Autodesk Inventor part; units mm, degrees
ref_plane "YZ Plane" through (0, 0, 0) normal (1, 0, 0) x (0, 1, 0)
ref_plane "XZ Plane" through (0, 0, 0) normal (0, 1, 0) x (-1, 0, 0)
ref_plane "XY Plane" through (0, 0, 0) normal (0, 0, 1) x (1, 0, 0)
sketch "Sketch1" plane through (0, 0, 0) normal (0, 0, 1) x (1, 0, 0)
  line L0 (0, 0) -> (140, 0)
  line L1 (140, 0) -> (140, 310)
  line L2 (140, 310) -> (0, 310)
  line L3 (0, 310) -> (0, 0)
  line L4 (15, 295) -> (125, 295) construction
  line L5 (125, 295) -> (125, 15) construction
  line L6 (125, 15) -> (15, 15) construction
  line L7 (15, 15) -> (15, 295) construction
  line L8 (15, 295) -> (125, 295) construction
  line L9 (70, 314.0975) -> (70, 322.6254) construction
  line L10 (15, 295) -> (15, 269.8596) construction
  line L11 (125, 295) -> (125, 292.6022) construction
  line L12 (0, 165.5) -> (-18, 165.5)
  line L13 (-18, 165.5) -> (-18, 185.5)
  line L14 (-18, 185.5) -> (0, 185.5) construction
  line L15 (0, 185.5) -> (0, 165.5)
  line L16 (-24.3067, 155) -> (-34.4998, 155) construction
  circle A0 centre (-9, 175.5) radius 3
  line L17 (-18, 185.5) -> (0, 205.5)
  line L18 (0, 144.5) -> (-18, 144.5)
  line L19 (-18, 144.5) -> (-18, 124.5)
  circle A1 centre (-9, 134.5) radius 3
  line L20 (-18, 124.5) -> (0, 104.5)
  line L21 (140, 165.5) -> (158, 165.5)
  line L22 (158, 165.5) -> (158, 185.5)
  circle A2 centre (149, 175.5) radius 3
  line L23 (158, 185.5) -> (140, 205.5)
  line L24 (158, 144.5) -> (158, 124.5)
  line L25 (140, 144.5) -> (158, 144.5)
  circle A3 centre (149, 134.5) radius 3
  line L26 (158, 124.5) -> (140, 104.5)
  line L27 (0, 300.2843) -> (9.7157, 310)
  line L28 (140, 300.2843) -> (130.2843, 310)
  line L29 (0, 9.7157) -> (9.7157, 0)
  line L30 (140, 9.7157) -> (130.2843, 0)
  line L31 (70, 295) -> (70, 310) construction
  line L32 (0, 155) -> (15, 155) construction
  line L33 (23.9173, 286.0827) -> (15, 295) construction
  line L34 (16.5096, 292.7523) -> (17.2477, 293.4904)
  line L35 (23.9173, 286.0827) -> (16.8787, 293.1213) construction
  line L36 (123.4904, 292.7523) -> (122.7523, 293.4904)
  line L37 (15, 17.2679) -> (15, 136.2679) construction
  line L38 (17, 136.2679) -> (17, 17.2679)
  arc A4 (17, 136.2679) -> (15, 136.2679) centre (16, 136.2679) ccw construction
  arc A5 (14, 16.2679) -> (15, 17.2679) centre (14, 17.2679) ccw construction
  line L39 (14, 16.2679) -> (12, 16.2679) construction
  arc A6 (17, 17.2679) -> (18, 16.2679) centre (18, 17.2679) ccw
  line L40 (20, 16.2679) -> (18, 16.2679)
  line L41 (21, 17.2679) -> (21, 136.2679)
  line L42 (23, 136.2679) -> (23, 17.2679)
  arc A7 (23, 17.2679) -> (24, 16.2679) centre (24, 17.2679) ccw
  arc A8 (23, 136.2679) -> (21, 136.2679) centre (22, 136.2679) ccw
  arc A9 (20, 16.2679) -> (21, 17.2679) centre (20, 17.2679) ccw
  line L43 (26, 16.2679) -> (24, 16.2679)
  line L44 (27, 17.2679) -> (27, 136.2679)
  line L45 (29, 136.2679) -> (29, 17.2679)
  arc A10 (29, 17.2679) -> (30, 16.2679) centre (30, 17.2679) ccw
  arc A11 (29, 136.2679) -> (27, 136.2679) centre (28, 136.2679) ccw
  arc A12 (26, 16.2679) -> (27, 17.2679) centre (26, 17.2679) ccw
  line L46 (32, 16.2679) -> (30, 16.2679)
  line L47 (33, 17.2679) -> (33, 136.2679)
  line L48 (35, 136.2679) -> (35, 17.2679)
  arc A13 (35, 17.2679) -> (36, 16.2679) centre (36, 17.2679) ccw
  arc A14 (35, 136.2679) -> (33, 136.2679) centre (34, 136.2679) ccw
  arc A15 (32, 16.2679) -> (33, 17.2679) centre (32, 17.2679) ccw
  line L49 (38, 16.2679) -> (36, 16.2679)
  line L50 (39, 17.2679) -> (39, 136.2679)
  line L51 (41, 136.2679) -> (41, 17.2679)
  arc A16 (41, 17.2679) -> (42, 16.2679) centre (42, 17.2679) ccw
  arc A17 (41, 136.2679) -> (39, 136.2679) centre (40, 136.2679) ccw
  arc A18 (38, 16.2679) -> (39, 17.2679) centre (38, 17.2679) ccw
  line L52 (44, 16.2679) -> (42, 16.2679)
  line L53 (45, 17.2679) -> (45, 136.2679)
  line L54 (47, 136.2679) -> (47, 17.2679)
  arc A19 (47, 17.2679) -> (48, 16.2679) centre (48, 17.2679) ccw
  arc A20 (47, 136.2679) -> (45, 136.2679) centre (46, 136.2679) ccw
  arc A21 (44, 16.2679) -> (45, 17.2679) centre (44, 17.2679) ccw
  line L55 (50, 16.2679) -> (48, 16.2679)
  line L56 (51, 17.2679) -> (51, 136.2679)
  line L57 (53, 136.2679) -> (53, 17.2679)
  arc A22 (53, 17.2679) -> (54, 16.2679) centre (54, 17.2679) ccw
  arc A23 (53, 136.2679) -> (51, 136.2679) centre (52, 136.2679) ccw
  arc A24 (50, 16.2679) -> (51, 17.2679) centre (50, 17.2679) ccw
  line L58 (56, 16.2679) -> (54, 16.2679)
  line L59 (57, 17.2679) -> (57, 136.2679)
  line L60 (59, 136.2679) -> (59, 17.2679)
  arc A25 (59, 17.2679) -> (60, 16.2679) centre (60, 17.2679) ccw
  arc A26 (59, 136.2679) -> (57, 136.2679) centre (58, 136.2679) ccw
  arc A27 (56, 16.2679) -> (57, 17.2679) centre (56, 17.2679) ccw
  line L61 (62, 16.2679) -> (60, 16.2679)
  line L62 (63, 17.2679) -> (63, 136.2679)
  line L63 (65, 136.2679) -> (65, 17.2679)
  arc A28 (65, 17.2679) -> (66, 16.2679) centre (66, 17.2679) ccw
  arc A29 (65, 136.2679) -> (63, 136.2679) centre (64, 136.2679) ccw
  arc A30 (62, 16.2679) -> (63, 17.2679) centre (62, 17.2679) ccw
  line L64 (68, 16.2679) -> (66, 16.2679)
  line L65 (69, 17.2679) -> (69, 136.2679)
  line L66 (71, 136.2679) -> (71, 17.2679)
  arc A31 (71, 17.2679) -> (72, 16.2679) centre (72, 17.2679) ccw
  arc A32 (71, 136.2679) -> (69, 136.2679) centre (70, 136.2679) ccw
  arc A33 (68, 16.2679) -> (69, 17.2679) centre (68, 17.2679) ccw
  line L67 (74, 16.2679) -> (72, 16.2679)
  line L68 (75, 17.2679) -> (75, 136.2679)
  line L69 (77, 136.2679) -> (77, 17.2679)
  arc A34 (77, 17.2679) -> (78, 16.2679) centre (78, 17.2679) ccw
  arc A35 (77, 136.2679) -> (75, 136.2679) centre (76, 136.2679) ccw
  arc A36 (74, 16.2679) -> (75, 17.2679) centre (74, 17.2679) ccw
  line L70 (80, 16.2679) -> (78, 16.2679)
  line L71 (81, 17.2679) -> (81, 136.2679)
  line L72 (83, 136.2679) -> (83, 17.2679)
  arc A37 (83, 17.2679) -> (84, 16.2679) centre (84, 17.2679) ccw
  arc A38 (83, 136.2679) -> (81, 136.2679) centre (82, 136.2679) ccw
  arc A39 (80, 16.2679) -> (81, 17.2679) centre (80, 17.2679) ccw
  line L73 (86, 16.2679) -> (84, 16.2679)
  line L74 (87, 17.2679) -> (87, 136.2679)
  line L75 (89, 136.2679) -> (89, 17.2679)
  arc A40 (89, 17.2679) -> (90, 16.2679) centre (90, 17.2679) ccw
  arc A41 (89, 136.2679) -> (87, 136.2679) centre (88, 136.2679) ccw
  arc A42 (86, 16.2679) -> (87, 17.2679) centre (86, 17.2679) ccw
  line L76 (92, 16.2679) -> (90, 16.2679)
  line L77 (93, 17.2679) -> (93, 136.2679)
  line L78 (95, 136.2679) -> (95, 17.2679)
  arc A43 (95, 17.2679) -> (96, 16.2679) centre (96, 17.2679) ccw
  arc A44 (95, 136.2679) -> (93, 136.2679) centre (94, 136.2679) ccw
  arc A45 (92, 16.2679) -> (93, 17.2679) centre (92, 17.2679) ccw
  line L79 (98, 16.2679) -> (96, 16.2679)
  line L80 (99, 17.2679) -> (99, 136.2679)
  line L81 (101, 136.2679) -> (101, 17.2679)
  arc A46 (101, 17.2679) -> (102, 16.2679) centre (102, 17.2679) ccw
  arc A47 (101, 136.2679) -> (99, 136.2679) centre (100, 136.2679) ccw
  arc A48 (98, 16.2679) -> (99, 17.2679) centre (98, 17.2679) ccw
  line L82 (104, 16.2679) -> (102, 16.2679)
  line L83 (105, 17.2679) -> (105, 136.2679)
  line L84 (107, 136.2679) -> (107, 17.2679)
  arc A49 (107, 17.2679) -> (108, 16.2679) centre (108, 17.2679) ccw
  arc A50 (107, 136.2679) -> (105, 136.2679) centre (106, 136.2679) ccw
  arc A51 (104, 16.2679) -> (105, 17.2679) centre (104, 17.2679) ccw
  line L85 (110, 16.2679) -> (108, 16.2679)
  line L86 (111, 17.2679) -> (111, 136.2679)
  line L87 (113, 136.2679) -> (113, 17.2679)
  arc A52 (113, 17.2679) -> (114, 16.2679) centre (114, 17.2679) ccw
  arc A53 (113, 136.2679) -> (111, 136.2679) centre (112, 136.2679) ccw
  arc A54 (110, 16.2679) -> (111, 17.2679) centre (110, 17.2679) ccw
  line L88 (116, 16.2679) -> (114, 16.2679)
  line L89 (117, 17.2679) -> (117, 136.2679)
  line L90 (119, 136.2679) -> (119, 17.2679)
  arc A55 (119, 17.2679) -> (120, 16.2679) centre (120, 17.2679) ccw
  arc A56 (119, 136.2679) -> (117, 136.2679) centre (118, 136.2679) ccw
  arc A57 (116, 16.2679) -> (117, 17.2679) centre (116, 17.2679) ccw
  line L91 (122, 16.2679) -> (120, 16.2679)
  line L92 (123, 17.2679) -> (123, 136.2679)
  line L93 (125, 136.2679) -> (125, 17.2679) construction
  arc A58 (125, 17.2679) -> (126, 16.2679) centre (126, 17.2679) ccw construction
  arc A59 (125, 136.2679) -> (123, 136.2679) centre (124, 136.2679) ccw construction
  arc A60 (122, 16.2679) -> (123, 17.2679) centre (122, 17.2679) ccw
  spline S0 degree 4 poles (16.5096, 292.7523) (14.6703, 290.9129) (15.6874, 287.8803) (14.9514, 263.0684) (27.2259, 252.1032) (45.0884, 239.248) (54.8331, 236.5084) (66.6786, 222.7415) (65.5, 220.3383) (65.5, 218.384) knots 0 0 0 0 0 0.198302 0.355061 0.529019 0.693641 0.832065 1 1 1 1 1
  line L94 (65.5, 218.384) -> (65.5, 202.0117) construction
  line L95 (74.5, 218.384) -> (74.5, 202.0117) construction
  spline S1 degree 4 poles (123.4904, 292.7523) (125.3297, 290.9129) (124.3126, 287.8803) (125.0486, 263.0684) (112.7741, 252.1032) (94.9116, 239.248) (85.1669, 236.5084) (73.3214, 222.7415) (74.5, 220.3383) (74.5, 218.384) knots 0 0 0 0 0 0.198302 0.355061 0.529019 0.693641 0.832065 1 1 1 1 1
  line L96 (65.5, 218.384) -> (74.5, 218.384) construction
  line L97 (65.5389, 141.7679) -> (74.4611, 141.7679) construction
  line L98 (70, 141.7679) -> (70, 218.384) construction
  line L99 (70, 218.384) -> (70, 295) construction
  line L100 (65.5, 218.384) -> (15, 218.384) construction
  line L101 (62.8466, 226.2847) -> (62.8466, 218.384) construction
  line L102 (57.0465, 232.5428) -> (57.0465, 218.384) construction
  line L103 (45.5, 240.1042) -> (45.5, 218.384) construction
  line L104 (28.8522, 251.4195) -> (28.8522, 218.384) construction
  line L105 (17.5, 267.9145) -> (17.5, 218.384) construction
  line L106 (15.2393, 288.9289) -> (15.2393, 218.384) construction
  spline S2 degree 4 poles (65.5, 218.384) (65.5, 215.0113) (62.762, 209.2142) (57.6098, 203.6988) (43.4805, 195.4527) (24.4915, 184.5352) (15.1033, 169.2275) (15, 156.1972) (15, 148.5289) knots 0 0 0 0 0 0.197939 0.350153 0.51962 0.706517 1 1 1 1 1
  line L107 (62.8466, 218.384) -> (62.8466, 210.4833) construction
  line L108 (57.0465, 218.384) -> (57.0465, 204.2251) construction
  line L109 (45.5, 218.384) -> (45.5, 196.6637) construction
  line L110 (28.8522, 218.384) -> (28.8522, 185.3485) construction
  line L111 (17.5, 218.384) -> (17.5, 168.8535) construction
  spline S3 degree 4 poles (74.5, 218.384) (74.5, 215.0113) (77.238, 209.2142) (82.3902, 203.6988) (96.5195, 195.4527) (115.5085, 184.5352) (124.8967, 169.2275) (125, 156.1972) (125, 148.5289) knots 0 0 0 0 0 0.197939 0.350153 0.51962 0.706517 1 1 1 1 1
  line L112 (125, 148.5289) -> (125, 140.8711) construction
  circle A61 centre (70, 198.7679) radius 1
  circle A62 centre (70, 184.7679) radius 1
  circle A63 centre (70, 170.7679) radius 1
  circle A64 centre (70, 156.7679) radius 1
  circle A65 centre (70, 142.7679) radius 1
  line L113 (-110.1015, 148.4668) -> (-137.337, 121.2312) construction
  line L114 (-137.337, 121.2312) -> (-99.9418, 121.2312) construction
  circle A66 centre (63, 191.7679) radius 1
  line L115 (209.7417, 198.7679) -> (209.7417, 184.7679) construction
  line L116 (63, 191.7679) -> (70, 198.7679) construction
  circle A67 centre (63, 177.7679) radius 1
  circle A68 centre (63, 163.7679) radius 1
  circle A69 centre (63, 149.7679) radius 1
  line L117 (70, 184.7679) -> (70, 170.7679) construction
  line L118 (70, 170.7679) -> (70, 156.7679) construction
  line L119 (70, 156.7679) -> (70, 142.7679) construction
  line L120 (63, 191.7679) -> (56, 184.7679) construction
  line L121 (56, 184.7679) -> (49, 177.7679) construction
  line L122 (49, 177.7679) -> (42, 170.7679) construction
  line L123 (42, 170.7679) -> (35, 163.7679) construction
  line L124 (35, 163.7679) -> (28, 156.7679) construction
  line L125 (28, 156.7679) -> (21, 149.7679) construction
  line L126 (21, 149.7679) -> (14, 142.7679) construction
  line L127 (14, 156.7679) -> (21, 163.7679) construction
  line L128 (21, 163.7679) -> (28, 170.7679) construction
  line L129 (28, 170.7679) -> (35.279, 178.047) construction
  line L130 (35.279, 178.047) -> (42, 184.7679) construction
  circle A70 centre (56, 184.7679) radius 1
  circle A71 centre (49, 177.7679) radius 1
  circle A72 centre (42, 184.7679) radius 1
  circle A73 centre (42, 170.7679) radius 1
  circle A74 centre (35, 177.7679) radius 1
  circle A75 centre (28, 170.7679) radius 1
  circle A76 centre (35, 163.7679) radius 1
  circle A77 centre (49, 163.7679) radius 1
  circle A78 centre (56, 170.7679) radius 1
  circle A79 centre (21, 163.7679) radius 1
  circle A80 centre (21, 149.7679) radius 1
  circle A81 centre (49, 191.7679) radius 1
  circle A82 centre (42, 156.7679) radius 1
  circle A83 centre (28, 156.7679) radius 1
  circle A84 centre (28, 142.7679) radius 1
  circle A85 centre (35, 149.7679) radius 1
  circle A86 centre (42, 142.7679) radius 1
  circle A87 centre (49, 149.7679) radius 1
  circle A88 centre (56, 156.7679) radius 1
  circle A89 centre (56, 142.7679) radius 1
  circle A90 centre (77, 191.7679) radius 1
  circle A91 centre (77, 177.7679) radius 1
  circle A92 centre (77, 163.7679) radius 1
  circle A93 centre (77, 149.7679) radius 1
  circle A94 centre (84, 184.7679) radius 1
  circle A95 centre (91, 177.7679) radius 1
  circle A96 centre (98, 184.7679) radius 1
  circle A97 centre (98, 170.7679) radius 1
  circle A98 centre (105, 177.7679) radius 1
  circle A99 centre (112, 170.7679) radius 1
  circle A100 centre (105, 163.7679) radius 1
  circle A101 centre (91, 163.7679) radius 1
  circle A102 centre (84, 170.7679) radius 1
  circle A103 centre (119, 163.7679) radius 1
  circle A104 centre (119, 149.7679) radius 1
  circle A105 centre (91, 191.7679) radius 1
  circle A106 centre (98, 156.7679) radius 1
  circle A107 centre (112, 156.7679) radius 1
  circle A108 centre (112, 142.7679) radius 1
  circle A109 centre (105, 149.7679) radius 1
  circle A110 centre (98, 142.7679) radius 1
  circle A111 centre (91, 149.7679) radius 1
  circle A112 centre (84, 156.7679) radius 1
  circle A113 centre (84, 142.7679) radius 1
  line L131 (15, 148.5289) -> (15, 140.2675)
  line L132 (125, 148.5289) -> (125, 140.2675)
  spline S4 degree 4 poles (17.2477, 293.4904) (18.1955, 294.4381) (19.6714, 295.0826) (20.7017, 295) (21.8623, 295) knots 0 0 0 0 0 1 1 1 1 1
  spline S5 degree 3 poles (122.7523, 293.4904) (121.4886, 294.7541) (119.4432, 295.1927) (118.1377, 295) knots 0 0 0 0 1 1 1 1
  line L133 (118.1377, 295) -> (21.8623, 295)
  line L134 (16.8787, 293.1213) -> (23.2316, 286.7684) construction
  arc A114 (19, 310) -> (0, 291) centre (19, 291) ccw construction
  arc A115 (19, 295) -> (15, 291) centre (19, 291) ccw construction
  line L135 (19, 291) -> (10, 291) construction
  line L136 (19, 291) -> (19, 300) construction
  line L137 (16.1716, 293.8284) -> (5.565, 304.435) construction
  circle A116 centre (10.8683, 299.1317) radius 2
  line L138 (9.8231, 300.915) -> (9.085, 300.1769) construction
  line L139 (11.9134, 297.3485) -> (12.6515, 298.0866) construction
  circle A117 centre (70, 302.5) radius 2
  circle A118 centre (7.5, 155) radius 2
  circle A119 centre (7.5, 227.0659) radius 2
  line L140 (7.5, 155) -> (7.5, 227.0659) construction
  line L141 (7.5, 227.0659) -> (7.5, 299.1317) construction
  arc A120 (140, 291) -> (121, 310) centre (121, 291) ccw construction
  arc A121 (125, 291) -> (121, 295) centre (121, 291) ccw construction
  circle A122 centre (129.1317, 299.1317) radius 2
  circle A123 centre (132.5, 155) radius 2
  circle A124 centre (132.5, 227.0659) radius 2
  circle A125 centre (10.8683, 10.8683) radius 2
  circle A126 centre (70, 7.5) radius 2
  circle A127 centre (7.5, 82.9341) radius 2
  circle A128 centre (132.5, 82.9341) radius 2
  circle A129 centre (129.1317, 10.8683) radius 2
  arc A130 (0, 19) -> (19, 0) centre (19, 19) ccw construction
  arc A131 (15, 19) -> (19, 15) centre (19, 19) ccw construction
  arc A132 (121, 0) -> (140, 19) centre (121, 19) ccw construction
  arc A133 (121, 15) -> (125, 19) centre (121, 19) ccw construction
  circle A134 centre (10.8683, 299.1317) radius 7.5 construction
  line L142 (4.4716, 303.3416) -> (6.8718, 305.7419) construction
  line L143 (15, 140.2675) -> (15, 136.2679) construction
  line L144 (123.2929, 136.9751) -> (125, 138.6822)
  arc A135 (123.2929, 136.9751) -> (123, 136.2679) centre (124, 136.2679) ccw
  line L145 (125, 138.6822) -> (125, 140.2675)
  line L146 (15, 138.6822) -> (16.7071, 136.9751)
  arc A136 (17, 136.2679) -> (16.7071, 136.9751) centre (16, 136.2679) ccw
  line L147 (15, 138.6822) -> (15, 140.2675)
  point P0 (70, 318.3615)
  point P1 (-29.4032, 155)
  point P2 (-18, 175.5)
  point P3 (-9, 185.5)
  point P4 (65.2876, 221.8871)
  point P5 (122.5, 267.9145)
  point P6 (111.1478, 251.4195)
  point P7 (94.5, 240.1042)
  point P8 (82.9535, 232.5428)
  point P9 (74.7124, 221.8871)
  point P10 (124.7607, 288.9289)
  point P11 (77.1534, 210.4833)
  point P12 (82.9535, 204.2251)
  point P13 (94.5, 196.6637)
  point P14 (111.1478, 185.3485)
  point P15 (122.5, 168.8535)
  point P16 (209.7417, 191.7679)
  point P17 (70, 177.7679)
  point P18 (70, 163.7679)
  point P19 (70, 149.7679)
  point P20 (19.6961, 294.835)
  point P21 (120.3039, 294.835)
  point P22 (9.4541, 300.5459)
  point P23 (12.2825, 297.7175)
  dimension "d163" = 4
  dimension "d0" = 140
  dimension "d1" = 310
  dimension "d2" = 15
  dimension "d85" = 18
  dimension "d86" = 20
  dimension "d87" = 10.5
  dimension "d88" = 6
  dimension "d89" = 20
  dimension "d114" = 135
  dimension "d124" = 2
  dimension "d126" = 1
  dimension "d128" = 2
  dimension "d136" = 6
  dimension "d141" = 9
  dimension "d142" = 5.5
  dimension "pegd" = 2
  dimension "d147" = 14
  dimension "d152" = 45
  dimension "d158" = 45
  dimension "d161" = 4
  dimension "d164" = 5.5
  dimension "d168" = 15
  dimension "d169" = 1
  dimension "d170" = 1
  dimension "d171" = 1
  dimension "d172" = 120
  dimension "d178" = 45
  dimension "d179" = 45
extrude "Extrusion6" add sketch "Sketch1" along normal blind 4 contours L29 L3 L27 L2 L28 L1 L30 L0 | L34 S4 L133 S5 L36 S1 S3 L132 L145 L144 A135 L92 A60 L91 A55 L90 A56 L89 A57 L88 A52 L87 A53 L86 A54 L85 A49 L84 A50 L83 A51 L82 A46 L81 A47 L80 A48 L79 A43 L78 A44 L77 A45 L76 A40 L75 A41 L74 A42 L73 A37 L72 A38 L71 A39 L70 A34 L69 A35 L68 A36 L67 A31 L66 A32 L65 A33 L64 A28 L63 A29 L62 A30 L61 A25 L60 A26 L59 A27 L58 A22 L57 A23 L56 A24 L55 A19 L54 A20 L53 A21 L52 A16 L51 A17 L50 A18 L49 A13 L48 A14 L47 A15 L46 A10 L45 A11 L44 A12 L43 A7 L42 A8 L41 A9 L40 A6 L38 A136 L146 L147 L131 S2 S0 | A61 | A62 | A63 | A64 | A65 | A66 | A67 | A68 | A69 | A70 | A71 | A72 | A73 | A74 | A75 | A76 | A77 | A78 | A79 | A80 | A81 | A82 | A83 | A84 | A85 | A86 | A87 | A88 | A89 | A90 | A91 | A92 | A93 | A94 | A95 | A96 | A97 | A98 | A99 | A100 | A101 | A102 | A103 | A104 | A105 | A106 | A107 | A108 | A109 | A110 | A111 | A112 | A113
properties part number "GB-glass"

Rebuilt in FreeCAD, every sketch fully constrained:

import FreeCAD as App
import Part
import Sketcher
Q = App.Units.Quantity


def add_polygon(sketch, points):
    """Adds a closed chain of lines whose ends are joined by coincident constraints."""
    first, n = sketch.GeometryCount, len(points)
    for a, b in zip(points, points[1:] + points[:1]):
        sketch.addGeometry(Part.LineSegment(App.Vector(*a, 0), App.Vector(*b, 0)), False)
    for i in range(n):
        sketch.addConstraint(Sketcher.Constraint("Coincident", first + i, 2, first + (i + 1) % n, 1))

doc = App.newDocument("Part")
body = doc.addObject("PartDesign::Body", "Body")

sketch1 = doc.addObject("Sketcher::SketchObject", "Sketch")
body.addObject(sketch1)
sketch1.AttachmentSupport = (doc.XY_Plane, [""])
sketch1.MapMode = "FlatFace"
add_polygon(sketch1, [(0, 9.7), (9.7, 0), (130.3, 0), (140, 9.7), (140, 300.3), (130.3, 310), (9.7, 310), (0, 300.3)])
sketch1.addGeometry(Part.Circle(App.Vector(10.9, 10.9, 0), App.Vector(0, 0, 1), 2), False)
sketch1.addGeometry(Part.Circle(App.Vector(7.5, 82.9, 0), App.Vector(0, 0, 1), 2), False)
sketch1.addGeometry(Part.Circle(App.Vector(70, 7.5, 0), App.Vector(0, 0, 1), 2), False)
sketch1.addGeometry(Part.Circle(App.Vector(129.1, 10.9, 0), App.Vector(0, 0, 1), 2), False)
sketch1.addGeometry(Part.Circle(App.Vector(132.5, 82.9, 0), App.Vector(0, 0, 1), 2), False)
sketch1.addGeometry(Part.Circle(App.Vector(7.5, 155, 0), App.Vector(0, 0, 1), 2), False)
sketch1.addGeometry(Part.Circle(App.Vector(7.5, 227.1, 0), App.Vector(0, 0, 1), 2), False)
sketch1.addGeometry(Part.Circle(App.Vector(10.9, 299.1, 0), App.Vector(0, 0, 1), 2), False)
sketch1.addGeometry(Part.Circle(App.Vector(132.5, 155, 0), App.Vector(0, 0, 1), 2), False)
sketch1.addGeometry(Part.Circle(App.Vector(132.5, 227.1, 0), App.Vector(0, 0, 1), 2), False)
sketch1.addGeometry(Part.Circle(App.Vector(70, 302.5, 0), App.Vector(0, 0, 1), 2), False)
sketch1.addGeometry(Part.Circle(App.Vector(129.1, 299.1, 0), App.Vector(0, 0, 1), 2), False)
sketch1.addConstraint([
    Sketcher.Constraint("Horizontal", 1),
    Sketcher.Constraint("Vertical", 3),
    Sketcher.Constraint("Horizontal", 5),
    Sketcher.Constraint("Vertical", 7),
    Sketcher.Constraint("Equal", 8, 9),
    Sketcher.Constraint("Equal", 9, 10),
    Sketcher.Constraint("Equal", 10, 11),
    Sketcher.Constraint("Equal", 11, 12),
    Sketcher.Constraint("Equal", 12, 13),
    Sketcher.Constraint("Equal", 13, 14),
    Sketcher.Constraint("Equal", 14, 15),
    Sketcher.Constraint("Equal", 15, 16),
    Sketcher.Constraint("Equal", 16, 17),
    Sketcher.Constraint("Equal", 17, 18),
    Sketcher.Constraint("Equal", 18, 19),
    Sketcher.Constraint("PointOnObject", 0, 2, -1),
    Sketcher.Constraint("PointOnObject", 6, 2, -2),
    Sketcher.Constraint("Perpendicular", 0, 2),
    Sketcher.Constraint("Perpendicular", 2, 4),
    Sketcher.Constraint("Perpendicular", 4, 6),
    Sketcher.Constraint("Horizontal", 8, 3, 11, 3),
    Sketcher.Constraint("Horizontal", 9, 3, 12, 3),
    Sketcher.Constraint("Horizontal", 13, 3, 16, 3),
    Sketcher.Constraint("Horizontal", 14, 3, 17, 3),
    Sketcher.Constraint("Horizontal", 15, 3, 19, 3),
    Sketcher.Constraint("Horizontal", 3, 2, 6, 2),
    Sketcher.Constraint("Horizontal", 2, 2, 7, 2),
    Sketcher.Constraint("Vertical", 9, 3, 13, 3),
    Sketcher.Constraint("Vertical", 13, 3, 14, 3),
    Sketcher.Constraint("Vertical", 8, 3, 15, 3),
    Sketcher.Constraint("Vertical", 12, 3, 16, 3),
    Sketcher.Constraint("Vertical", 16, 3, 17, 3),
    Sketcher.Constraint("Vertical", 10, 3, 18, 3),
    Sketcher.Constraint("Vertical", 11, 3, 19, 3),
    Sketcher.Constraint("Vertical", 1, 2, 4, 2),
    Sketcher.Constraint("Vertical", 0, 2, 5, 2),
    Sketcher.Constraint("Diameter", 8, Q("4 mm")),
    Sketcher.Constraint("DistanceX", -1, 1, 2, 2, Q("140 mm")),
    Sketcher.Constraint("DistanceY", -1, 1, 4, 2, Q("310 mm")),
    Sketcher.Constraint("DistanceX", -1, 1, 10, 3, Q("70 mm")),
    Sketcher.Constraint("DistanceY", -1, 1, 13, 3, Q("155 mm")),
    Sketcher.Constraint("DistanceX", 9, 3, 12, 3, Q("125 mm")),
    Sketcher.Constraint("DistanceX", -1, 1, 9, 3, Q("7.5 mm")),
    Sketcher.Constraint("DistanceY", -1, 1, 10, 3, Q("7.5 mm")),
    Sketcher.Constraint("DistanceY", -1, 1, 18, 3, Q("302.5 mm")),
    Sketcher.Constraint("Distance", 0, Q("13.74 mm")),
    Sketcher.Constraint("DistanceY", -1, 1, 9, 3, Q("82.934 mm")),
    Sketcher.Constraint("DistanceY", -1, 1, 14, 3, Q("227.066 mm")),
    Sketcher.Constraint("DistanceX", 0, 2, 11, 3, Q("119.416 mm")),
    Sketcher.Constraint("DistanceX", 8, 3, 1, 2, Q("119.416 mm")),
    Sketcher.Constraint("DistanceY", -1, 1, 8, 3, Q("10.8683 mm")),
    Sketcher.Constraint("DistanceY", -1, 1, 15, 3, Q("299.1317 mm")),
])
pad1 = doc.addObject("PartDesign::Pad", "Pad")
body.addObject(pad1)
pad1.Profile = sketch1
pad1.Length = 4

doc.recompute()
